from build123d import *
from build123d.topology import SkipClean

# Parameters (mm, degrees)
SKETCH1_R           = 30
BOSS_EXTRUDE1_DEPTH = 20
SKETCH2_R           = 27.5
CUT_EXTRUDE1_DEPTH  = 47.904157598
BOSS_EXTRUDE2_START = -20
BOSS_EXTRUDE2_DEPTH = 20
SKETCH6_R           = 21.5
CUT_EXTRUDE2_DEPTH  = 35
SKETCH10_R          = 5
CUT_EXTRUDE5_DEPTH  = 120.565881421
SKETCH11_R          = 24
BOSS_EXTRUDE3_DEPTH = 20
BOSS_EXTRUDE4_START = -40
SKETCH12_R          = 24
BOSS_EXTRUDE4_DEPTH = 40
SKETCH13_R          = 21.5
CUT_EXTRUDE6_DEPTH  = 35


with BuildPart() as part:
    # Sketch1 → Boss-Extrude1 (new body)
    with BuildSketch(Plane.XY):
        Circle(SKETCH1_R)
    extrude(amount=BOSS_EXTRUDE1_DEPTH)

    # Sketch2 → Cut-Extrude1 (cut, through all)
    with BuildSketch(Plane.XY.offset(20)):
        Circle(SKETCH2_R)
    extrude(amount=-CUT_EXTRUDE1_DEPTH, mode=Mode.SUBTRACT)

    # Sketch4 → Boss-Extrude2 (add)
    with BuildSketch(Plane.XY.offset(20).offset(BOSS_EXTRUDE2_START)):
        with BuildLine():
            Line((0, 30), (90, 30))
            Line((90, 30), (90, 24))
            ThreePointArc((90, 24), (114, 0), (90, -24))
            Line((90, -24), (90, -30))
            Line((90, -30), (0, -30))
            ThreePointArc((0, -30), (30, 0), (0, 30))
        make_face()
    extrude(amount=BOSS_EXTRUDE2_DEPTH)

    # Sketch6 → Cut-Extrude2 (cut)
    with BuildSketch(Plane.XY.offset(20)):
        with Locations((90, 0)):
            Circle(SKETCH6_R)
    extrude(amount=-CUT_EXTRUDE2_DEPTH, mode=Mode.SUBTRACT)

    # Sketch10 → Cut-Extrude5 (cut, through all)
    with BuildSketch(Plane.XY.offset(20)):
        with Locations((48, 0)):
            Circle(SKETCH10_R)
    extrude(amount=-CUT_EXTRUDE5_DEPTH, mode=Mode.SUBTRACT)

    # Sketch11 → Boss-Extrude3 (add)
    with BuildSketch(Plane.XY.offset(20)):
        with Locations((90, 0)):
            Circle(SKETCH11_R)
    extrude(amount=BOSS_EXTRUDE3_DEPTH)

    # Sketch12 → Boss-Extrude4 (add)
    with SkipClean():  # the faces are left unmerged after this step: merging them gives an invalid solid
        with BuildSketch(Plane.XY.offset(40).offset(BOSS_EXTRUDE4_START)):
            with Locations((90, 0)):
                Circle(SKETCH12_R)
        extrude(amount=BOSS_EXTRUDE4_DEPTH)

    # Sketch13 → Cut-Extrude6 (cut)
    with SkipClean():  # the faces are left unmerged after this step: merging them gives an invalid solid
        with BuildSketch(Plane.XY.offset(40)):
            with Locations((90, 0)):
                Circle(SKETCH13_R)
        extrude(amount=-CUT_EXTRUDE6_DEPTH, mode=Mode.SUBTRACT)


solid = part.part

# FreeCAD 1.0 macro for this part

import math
import FreeCAD as App
import Part
import Sketcher

V = App.Vector
Q = App.Units.Quantity

doc = App.newDocument("Part")
body = doc.addObject("PartDesign::Body", "Body")

# Sketch on XY plane
sketch1 = body.newObject("Sketcher::SketchObject", "Sketch")
sketch1.AttachmentSupport = (doc.getObject("XY_Plane"), [""])
sketch1.MapMode = "FlatFace"
sketch1.addGeometry(Part.Circle(V(0, 0, 0), V(0, 0, 1), 30), False)
sketch1.addConstraint(Sketcher.Constraint("Coincident", 0, 3, -1, 1))
sketch1.addConstraint(Sketcher.Constraint("Diameter", 0, Q("60 mm")))
pad1 = body.newObject("PartDesign::Pad", "Pad")
pad1.Profile = sketch1
pad1.Length = 20

# Sketch on XY plane
sketch2 = body.newObject("Sketcher::SketchObject", "Sketch001")
sketch2.AttachmentSupport = (doc.getObject("XY_Plane"), [""])
sketch2.MapMode = "FlatFace"
sketch2.AttachmentOffset = App.Placement(V(0, 0, 20), App.Rotation())
sketch2.addGeometry(Part.Circle(V(0, 0, 0), V(0, 0, 1), 28), False)
sketch2.addConstraint(Sketcher.Constraint("Coincident", 0, 3, -1, 1))
sketch2.addConstraint(Sketcher.Constraint("Diameter", 0, Q("55 mm")))
pocket1 = body.newObject("PartDesign::Pocket", "Pocket")
pocket1.Profile = sketch2
pocket1.Type = "ThroughAll"

# Sketch on XY plane
sketch3 = body.newObject("Sketcher::SketchObject", "Sketch002")
sketch3.AttachmentSupport = (doc.getObject("XY_Plane"), [""])
sketch3.MapMode = "FlatFace"
sketch3.addGeometry(Part.LineSegment(V(90, 30, 0), V(0, 30, 0)), False)
sketch3.addGeometry(Part.ArcOfCircle(Part.Circle(V(0, 0, 0), V(0, 0, 1), 30), math.radians(-90), math.radians(90)), False)
sketch3.addGeometry(Part.LineSegment(V(0, -30, 0), V(90, -30, 0)), False)
sketch3.addGeometry(Part.LineSegment(V(90, -30, 0), V(90, -24, 0)), False)
sketch3.addGeometry(Part.ArcOfCircle(Part.Circle(V(90, 0, 0), V(0, 0, 1), 24), math.radians(-90), math.radians(90)), False)
sketch3.addGeometry(Part.LineSegment(V(90, 24, 0), V(90, 30, 0)), False)
sketch3.addConstraint(Sketcher.Constraint("Tangent", 0, 2, 1, 2))
sketch3.addConstraint(Sketcher.Constraint("Tangent", 1, 1, 2, 1))
sketch3.addConstraint(Sketcher.Constraint("Coincident", 2, 2, 3, 1))
sketch3.addConstraint(Sketcher.Constraint("Coincident", 3, 2, 4, 1))
sketch3.addConstraint(Sketcher.Constraint("Coincident", 4, 2, 5, 1))
sketch3.addConstraint(Sketcher.Constraint("Coincident", 5, 2, 0, 1))
sketch3.addConstraint(Sketcher.Constraint("Horizontal", 0))
sketch3.addConstraint(Sketcher.Constraint("Horizontal", 2))
sketch3.addConstraint(Sketcher.Constraint("Vertical", 3))
sketch3.addConstraint(Sketcher.Constraint("Vertical", 5))
sketch3.addConstraint(Sketcher.Constraint("Coincident", 1, 3, -1, 1))
sketch3.addConstraint(Sketcher.Constraint("Symmetric", 3, 2, 4, 2, -1))
sketch3.addConstraint(Sketcher.Constraint("Vertical", 4, 3, 2, 2))
sketch3.addConstraint(Sketcher.Constraint("Radius", 1, Q("30 mm")))
sketch3.addConstraint(Sketcher.Constraint("Radius", 4, Q("24 mm")))
sketch3.addConstraint(Sketcher.Constraint("DistanceX", 0, 2, 0, 1, Q("90 mm")))
pad2 = body.newObject("PartDesign::Pad", "Pad001")
pad2.Profile = sketch3
pad2.Length = 20

# Sketch on XY plane
sketch4 = body.newObject("Sketcher::SketchObject", "Sketch003")
sketch4.AttachmentSupport = (doc.getObject("XY_Plane"), [""])
sketch4.MapMode = "FlatFace"
sketch4.AttachmentOffset = App.Placement(V(0, 0, 20), App.Rotation())
sketch4.addGeometry(Part.Circle(V(90, 0, 0), V(0, 0, 1), 22), False)
sketch4.addConstraint(Sketcher.Constraint("PointOnObject", 0, 3, -1))
sketch4.addConstraint(Sketcher.Constraint("Diameter", 0, Q("43 mm")))
sketch4.addConstraint(Sketcher.Constraint("DistanceX", -1, 1, 0, 3, Q("90 mm")))
pocket2 = body.newObject("PartDesign::Pocket", "Pocket001")
pocket2.Profile = sketch4
pocket2.Length = 35

# Sketch on XY plane
sketch5 = body.newObject("Sketcher::SketchObject", "Sketch004")
sketch5.AttachmentSupport = (doc.getObject("XY_Plane"), [""])
sketch5.MapMode = "FlatFace"
sketch5.AttachmentOffset = App.Placement(V(0, 0, 20), App.Rotation())
sketch5.addGeometry(Part.Circle(V(48, 0, 0), V(0, 0, 1), 5), False)
sketch5.addConstraint(Sketcher.Constraint("PointOnObject", 0, 3, -1))
sketch5.addConstraint(Sketcher.Constraint("Diameter", 0, Q("10 mm")))
sketch5.addConstraint(Sketcher.Constraint("DistanceX", -1, 1, 0, 3, Q("48 mm")))
pocket3 = body.newObject("PartDesign::Pocket", "Pocket002")
pocket3.Profile = sketch5
pocket3.Type = "ThroughAll"

# Sketch on XY plane
sketch6 = body.newObject("Sketcher::SketchObject", "Sketch005")
sketch6.AttachmentSupport = (doc.getObject("XY_Plane"), [""])
sketch6.MapMode = "FlatFace"
sketch6.AttachmentOffset = App.Placement(V(0, 0, 20), App.Rotation())
sketch6.addGeometry(Part.Circle(V(90, 0, 0), V(0, 0, 1), 24), False)
sketch6.addConstraint(Sketcher.Constraint("PointOnObject", 0, 3, -1))
sketch6.addConstraint(Sketcher.Constraint("Diameter", 0, Q("48 mm")))
sketch6.addConstraint(Sketcher.Constraint("DistanceX", -1, 1, 0, 3, Q("90 mm")))
pad3 = body.newObject("PartDesign::Pad", "Pad002")
pad3.Profile = sketch6
pad3.Length = 20

# Sketch on XY plane
sketch7 = body.newObject("Sketcher::SketchObject", "Sketch006")
sketch7.AttachmentSupport = (doc.getObject("XY_Plane"), [""])
sketch7.MapMode = "FlatFace"
sketch7.addGeometry(Part.Circle(V(90, 0, 0), V(0, 0, 1), 24), False)
sketch7.addConstraint(Sketcher.Constraint("PointOnObject", 0, 3, -1))
sketch7.addConstraint(Sketcher.Constraint("Diameter", 0, Q("48 mm")))
sketch7.addConstraint(Sketcher.Constraint("DistanceX", -1, 1, 0, 3, Q("90 mm")))
pad4 = body.newObject("PartDesign::Pad", "Pad003")
pad4.Profile = sketch7
pad4.Length = 40

# Sketch on XY plane
sketch8 = body.newObject("Sketcher::SketchObject", "Sketch007")
sketch8.AttachmentSupport = (doc.getObject("XY_Plane"), [""])
sketch8.MapMode = "FlatFace"
sketch8.AttachmentOffset = App.Placement(V(0, 0, 40), App.Rotation())
sketch8.addGeometry(Part.Circle(V(90, 0, 0), V(0, 0, 1), 22), False)
sketch8.addConstraint(Sketcher.Constraint("PointOnObject", 0, 3, -1))
sketch8.addConstraint(Sketcher.Constraint("Diameter", 0, Q("43 mm")))
sketch8.addConstraint(Sketcher.Constraint("DistanceX", -1, 1, 0, 3, Q("90 mm")))
pocket4 = body.newObject("PartDesign::Pocket", "Pocket003")
pocket4.Profile = sketch8
pocket4.Length = 35

doc.recompute()
